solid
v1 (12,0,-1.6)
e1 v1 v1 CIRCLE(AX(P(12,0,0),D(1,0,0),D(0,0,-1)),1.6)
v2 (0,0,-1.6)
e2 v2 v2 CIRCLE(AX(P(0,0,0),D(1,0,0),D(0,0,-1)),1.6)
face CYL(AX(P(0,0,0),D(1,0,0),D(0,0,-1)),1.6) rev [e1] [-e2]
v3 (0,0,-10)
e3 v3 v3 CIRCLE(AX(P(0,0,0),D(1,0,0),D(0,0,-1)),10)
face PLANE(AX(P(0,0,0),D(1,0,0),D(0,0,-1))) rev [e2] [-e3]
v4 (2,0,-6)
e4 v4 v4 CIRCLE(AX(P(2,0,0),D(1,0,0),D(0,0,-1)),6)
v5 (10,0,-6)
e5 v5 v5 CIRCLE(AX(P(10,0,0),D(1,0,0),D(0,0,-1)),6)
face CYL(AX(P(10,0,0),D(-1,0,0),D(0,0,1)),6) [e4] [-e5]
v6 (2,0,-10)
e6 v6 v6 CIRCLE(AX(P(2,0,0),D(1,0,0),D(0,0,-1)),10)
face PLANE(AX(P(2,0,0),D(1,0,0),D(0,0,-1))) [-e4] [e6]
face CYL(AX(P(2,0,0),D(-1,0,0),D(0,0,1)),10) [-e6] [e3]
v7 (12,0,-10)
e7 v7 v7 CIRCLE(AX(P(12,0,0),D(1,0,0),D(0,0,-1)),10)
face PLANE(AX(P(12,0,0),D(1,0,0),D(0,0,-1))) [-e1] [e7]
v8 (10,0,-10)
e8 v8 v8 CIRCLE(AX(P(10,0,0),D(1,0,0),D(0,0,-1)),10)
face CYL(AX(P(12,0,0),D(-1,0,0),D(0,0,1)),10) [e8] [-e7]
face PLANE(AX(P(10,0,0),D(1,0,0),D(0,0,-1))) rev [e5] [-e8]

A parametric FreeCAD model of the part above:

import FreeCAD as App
import Part
import Sketcher

V = App.Vector
Q = App.Units.Quantity

doc = App.newDocument("Part")
body = doc.addObject("PartDesign::Body", "Body")

# Sketch on YZ plane
sketch1 = body.newObject("Sketcher::SketchObject", "Sketch")
sketch1.AttachmentSupport = (doc.getObject("YZ_Plane"), [""])
sketch1.MapMode = "FlatFace"
sketch1.addGeometry(Part.Circle(V(0, 0, 0), V(0, 0, 1), 10), False)
sketch1.addConstraint([
    Sketcher.Constraint("Coincident", 0, 3, -1, 1),
    Sketcher.Constraint("Diameter", 0, Q("20 mm")),
])
pad1 = body.newObject("PartDesign::Pad", "Pad")
pad1.Profile = sketch1
pad1.Length = 2

# Sketch on YZ plane
sketch2 = body.newObject("Sketcher::SketchObject", "Sketch001")
sketch2.AttachmentSupport = (doc.getObject("YZ_Plane"), [""])
sketch2.MapMode = "FlatFace"
sketch2.AttachmentOffset = App.Placement(V(0, 0, 2), App.Rotation())
sketch2.addGeometry(Part.Circle(V(0, 0, 0), V(0, 0, 1), 6), False)
sketch2.addConstraint([
    Sketcher.Constraint("Coincident", 0, 3, -1, 1),
    Sketcher.Constraint("Diameter", 0, Q("12 mm")),
])
pad2 = body.newObject("PartDesign::Pad", "Pad001")
pad2.Profile = sketch2
pad2.Length = 8

# Sketch on YZ plane
sketch3 = body.newObject("Sketcher::SketchObject", "Sketch002")
sketch3.AttachmentSupport = (doc.getObject("YZ_Plane"), [""])
sketch3.MapMode = "FlatFace"
sketch3.AttachmentOffset = App.Placement(V(0, 0, 10), App.Rotation())
sketch3.addGeometry(Part.Circle(V(0, 0, 0), V(0, 0, 1), 10), False)
sketch3.addConstraint([
    Sketcher.Constraint("Coincident", 0, 3, -1, 1),
    Sketcher.Constraint("Diameter", 0, Q("20 mm")),
])
pad3 = body.newObject("PartDesign::Pad", "Pad002")
pad3.Profile = sketch3
pad3.Length = 2

# Sketch on YZ plane
sketch4 = body.newObject("Sketcher::SketchObject", "Sketch003")
sketch4.AttachmentSupport = (doc.getObject("YZ_Plane"), [""])
sketch4.MapMode = "FlatFace"
sketch4.AttachmentOffset = App.Placement(V(0, 0, 12), App.Rotation())
sketch4.addGeometry(Part.Circle(V(0, 0, 0), V(0, 0, 1), 1.6), False)
sketch4.addConstraint([
    Sketcher.Constraint("Coincident", 0, 3, -1, 1),
    Sketcher.Constraint("Diameter", 0, Q("3.2 mm")),
])
pocket1 = body.newObject("PartDesign::Pocket", "Pocket")
pocket1.Profile = sketch4
pocket1.Type = "ThroughAll"

doc.recompute()
